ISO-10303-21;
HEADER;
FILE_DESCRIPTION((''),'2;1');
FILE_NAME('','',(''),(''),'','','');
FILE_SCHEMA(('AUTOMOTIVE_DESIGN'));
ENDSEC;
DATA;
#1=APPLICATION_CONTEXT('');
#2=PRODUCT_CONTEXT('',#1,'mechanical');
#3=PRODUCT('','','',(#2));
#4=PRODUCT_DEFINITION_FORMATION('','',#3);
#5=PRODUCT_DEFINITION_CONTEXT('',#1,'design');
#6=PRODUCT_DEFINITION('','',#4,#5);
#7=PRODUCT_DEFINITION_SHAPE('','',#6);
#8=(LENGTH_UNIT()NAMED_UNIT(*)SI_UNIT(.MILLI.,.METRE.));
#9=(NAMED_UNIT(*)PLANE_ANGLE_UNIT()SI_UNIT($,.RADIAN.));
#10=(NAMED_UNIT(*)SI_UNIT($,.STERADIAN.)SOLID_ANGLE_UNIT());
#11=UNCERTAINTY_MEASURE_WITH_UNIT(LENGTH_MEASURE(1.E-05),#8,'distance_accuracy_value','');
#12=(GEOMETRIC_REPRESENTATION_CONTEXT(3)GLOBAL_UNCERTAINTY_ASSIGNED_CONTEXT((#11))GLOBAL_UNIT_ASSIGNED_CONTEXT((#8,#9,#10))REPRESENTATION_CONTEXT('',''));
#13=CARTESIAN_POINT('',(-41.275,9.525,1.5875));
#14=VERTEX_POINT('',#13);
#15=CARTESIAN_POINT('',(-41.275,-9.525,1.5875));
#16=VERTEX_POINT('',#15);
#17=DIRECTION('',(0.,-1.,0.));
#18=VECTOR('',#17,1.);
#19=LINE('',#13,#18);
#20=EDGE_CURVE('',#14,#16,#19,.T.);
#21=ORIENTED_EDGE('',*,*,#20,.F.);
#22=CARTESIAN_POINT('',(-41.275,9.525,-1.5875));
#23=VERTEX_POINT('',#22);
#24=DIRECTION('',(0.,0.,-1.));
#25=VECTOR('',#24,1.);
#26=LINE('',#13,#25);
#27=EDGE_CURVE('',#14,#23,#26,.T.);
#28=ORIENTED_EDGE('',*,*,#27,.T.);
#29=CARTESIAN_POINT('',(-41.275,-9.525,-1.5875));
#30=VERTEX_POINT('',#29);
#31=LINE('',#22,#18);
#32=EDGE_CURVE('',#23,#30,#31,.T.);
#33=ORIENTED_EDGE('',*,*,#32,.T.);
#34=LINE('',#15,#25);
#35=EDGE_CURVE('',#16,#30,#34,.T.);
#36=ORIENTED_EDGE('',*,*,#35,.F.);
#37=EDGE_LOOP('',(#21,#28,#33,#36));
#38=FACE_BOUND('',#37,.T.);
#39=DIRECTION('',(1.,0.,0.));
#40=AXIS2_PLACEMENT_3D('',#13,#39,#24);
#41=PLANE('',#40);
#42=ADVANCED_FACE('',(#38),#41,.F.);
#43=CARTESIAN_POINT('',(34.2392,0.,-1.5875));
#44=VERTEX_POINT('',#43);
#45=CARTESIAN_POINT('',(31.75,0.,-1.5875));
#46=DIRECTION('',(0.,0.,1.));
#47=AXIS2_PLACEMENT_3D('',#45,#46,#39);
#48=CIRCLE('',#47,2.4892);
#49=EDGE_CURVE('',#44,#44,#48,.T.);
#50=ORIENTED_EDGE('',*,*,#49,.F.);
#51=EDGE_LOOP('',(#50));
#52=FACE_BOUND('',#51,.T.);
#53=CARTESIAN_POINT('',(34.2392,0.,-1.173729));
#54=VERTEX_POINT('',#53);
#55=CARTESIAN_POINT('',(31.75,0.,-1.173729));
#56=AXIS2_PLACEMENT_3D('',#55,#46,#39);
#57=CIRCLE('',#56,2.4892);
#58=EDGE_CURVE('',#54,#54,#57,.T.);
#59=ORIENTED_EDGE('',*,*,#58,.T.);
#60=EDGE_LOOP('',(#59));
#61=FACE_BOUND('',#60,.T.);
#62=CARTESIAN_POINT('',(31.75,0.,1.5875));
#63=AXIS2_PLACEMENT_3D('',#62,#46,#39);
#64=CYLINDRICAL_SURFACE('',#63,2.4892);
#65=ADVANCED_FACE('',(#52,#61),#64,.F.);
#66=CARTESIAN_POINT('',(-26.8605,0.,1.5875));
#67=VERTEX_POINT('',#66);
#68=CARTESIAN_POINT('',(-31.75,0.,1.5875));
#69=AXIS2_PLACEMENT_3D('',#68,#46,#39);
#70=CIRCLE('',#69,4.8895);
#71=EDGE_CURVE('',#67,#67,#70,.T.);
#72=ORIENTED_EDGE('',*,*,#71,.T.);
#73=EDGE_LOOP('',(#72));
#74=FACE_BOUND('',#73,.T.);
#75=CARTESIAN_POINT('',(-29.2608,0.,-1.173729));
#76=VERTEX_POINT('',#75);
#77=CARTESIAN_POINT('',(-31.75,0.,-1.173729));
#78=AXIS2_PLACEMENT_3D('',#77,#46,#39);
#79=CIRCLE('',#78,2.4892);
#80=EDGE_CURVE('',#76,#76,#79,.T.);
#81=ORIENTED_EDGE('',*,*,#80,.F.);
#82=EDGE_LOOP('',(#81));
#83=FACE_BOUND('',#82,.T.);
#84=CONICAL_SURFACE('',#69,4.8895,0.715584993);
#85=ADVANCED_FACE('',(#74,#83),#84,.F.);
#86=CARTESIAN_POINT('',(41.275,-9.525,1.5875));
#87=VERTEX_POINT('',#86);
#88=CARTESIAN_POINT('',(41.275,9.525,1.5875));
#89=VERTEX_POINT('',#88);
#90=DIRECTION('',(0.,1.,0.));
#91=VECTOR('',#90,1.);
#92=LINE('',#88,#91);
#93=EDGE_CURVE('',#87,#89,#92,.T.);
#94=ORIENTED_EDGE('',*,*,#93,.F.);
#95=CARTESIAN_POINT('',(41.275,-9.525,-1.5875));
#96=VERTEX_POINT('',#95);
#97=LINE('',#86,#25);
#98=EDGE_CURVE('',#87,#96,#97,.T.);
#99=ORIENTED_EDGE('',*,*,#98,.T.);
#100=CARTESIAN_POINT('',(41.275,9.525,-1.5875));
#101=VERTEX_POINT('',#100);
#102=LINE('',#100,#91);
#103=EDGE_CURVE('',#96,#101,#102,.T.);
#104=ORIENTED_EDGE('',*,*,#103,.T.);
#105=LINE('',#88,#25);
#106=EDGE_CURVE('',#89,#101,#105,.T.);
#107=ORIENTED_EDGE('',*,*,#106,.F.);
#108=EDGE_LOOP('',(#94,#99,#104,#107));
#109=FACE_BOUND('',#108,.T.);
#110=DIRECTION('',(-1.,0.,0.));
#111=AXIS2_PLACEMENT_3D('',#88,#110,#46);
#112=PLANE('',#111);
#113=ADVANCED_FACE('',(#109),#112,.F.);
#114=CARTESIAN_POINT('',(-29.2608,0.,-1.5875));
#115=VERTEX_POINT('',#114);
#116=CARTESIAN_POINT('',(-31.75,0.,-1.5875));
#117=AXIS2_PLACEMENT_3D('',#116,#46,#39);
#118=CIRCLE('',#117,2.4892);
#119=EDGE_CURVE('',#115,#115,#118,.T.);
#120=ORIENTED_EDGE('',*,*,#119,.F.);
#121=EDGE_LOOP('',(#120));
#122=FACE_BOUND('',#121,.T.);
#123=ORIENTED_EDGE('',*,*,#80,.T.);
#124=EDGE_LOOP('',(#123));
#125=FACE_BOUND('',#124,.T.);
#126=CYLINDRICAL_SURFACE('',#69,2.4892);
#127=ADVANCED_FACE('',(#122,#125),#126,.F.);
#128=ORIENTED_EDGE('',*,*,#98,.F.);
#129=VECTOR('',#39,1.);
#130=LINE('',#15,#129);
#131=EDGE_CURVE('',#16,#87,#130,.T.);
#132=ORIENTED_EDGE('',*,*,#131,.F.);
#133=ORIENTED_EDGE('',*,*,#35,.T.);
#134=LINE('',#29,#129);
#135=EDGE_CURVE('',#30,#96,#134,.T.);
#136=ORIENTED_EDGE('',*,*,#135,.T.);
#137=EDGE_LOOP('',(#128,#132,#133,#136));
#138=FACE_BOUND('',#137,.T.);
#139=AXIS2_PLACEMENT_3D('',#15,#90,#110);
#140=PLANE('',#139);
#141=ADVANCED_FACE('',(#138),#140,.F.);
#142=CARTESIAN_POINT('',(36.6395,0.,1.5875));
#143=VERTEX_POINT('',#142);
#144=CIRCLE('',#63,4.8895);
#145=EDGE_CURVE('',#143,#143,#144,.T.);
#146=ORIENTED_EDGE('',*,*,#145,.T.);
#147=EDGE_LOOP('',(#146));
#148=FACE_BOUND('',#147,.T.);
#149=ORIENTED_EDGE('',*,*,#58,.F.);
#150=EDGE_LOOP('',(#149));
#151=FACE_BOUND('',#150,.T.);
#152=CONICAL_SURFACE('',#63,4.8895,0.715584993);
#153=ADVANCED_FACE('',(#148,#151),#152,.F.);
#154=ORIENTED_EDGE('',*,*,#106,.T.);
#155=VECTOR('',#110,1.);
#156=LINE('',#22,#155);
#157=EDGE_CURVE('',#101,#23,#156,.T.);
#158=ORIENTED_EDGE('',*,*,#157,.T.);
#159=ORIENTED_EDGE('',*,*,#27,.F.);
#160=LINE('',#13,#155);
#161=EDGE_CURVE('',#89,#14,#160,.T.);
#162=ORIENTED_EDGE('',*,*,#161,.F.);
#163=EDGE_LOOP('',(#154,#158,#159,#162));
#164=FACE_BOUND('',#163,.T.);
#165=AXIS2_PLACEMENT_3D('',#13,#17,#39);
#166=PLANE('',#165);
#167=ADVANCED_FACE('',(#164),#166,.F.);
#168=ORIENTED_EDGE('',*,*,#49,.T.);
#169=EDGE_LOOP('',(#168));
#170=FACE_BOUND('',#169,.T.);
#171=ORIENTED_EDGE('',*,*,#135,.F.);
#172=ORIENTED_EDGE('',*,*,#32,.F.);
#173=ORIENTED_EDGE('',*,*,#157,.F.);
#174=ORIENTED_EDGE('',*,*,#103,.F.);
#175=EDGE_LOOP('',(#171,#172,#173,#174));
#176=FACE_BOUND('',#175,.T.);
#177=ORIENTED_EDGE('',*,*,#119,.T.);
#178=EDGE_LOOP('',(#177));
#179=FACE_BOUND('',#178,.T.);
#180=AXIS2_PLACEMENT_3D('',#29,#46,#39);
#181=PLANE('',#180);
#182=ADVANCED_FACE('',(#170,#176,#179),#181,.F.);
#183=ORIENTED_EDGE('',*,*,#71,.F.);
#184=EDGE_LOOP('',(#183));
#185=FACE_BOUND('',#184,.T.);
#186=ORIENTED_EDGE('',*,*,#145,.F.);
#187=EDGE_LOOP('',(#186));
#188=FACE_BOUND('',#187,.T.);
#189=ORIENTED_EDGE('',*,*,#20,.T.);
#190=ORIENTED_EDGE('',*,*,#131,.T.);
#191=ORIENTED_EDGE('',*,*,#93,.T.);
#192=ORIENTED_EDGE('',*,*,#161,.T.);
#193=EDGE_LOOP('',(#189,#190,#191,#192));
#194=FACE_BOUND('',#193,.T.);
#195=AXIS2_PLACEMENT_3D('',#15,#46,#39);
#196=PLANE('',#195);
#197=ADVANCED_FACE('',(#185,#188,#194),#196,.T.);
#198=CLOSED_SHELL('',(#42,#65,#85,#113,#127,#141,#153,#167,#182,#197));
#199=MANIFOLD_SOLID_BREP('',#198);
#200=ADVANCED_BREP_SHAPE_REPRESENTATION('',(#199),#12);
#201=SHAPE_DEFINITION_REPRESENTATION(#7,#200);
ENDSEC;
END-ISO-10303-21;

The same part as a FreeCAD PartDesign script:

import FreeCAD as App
import Part
import Sketcher
Q = App.Units.Quantity


def add_polygon(sketch, points):
    """Adds a closed chain of lines whose ends are joined by coincident constraints."""
    first, n = sketch.GeometryCount, len(points)
    for a, b in zip(points, points[1:] + points[:1]):
        sketch.addGeometry(Part.LineSegment(App.Vector(*a, 0), App.Vector(*b, 0)), False)
    for i in range(n):
        sketch.addConstraint(Sketcher.Constraint("Coincident", first + i, 2, first + (i + 1) % n, 1))

doc = App.newDocument("Part")
body = doc.addObject("PartDesign::Body", "Body")

sketch1 = body.newObject("Sketcher::SketchObject", "Sketch")
sketch1.AttachmentSupport = (doc.getObject("XY_Plane"), [""])
sketch1.MapMode = "FlatFace"
add_polygon(sketch1, [(-41, 10), (-41, -10), (41, -10), (41, 10)])
sketch1.addConstraint(Sketcher.Constraint("Vertical", 0))
sketch1.addConstraint(Sketcher.Constraint("Horizontal", 1))
sketch1.addConstraint(Sketcher.Constraint("Vertical", 2))
sketch1.addConstraint(Sketcher.Constraint("Horizontal", 3))
sketch1.addConstraint(Sketcher.Constraint("Symmetric", 0, 2, 2, 2, -1, 1))
sketch1.addConstraint(Sketcher.Constraint("DistanceX", 1, 1, 1, 2, Q("3.25 in")))
sketch1.addConstraint(Sketcher.Constraint("DistanceY", 0, 2, 0, 1, Q("0.75 in")))
pad1 = body.newObject("PartDesign::Pad", "Pad")
pad1.Profile = sketch1
pad1.Length = Q("0.125 in")
pad1.Midplane = True

sketch2 = body.newObject("Sketcher::SketchObject", "Sketch001")
sketch2.AttachmentSupport = (doc.getObject("YZ_Plane"), [""])
sketch2.MapMode = "FlatFace"
sketch2.AttachmentOffset = App.Placement(App.Vector(0, 0, -1.25 * 25.4), App.Rotation())
add_polygon(sketch2, [(0, -1.59), (0, 1.59), (-4.89, 1.59), (-2.49, -1.17), (-2.49, -1.59)])
sketch2.addConstraint(Sketcher.Constraint("Vertical", 0))
sketch2.addConstraint(Sketcher.Constraint("Horizontal", 1))
sketch2.addConstraint(Sketcher.Constraint("Vertical", 3))
sketch2.addConstraint(Sketcher.Constraint("Horizontal", 4))
sketch2.addConstraint(Sketcher.Constraint("Symmetric", 0, 2, 4, 2, -1, 1))
sketch2.addConstraint(Sketcher.Constraint("Angle", 2, Q("-49 deg")))
sketch2.addConstraint(Sketcher.Constraint("DistanceX", 4, 1, 4, 2, Q("0.098 in")))
sketch2.addConstraint(Sketcher.Constraint("DistanceY", 0, 1, 0, 2, Q("0.125 in")))
sketch2.addConstraint(Sketcher.Constraint("DistanceX", 1, 2, 1, 1, Q("0.1925 in")))
groove = body.newObject("PartDesign::Groove", "Groove")
groove.Profile = sketch2
groove.ReferenceAxis = (sketch2, ["V_Axis"])
groove.Angle = 360
doc.recompute()

linearpattern = body.newObject("PartDesign::LinearPattern", "LinearPattern")
linearpattern.Originals = [groove]
linearpattern.Direction = (doc.getObject("X_Axis"), [""])
linearpattern.Mode = "offset"
linearpattern.Offset = Q("2.5 in")
linearpattern.Occurrences = 2
body.Tip = linearpattern

doc.recompute()
